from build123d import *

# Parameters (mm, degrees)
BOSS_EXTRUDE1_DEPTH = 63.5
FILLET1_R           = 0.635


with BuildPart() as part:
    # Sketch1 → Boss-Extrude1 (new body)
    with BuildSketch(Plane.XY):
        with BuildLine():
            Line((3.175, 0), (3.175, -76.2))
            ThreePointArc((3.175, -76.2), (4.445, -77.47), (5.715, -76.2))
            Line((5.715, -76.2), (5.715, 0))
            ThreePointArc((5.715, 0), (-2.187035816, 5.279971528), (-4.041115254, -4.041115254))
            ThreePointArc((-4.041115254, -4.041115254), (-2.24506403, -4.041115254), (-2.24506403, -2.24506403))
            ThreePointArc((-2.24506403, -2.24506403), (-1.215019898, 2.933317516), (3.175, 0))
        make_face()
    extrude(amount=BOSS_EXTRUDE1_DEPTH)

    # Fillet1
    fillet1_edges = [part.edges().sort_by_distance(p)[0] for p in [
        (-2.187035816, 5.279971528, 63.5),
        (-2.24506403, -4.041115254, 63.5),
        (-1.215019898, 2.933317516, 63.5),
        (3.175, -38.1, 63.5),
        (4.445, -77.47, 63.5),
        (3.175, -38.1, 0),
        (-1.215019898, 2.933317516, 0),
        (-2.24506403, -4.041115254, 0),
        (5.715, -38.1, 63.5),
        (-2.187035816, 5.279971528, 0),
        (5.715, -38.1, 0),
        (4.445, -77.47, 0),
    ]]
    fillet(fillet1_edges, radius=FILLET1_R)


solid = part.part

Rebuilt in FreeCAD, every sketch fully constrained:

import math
import FreeCAD as App
import Part
import Sketcher
from FreeCAD import Vector
Q = App.Units.Quantity


def edges_at(feature, points):
    """Names of the edges that pass closest to the given points."""
    edges = feature.Shape.Edges
    near = lambda p: min(range(len(edges)), key=lambda i: edges[i].distToShape(Part.Vertex(*p))[0])
    return sorted({f"Edge{near(p) + 1}" for p in points})

doc = App.newDocument("Part")
params = doc.addObject("Spreadsheet::Sheet", "Params")
for row, (alias, value) in enumerate([
    ("sketch1_height", "3 in"),
    ("sketch1_radius", "0.05 in"),
    ("sketch1_radius2", "0.225 in"),
    ("pad1_length", "2.5 in"),
    ("fillet_radius", "0.025 in"),
], start=1):
    params.set(f"A{row}", alias)
    params.set(f"B{row}", "=" + value)
    params.setAlias(f"B{row}", alias)

body = doc.addObject("PartDesign::Body", "Body")

sketch1 = doc.addObject("Sketcher::SketchObject", "Sketch")
body.addObject(sketch1)
sketch1.AttachmentSupport = (doc.XY_Plane, [""])
sketch1.MapMode = "FlatFace"
sketch1.addGeometry([
    Part.LineSegment(Vector(3.175, 0, 0), Vector(3.175, -76.2, 0)),
    Part.ArcOfCircle(Part.Circle(Vector(4.445, -76.2, 0), Vector(0, 0, 1), 1.27), math.radians(180), math.radians(360)),
    Part.LineSegment(Vector(5.715, -76.2, 0), Vector(5.715, 0, 0)),
    Part.ArcOfCircle(Part.Circle(Vector(0, 0, 0), Vector(0, 0, 1), 5.715), math.radians(0), math.radians(225)),
    Part.ArcOfCircle(Part.Circle(Vector(-3.14309, -3.14309, 0), Vector(0, 0, 1), 1.27), math.radians(-135), math.radians(45)),
    Part.ArcOfCircle(Part.Circle(Vector(0, 0, 0), Vector(0, 0, 1), 3.175), math.radians(0), math.radians(225)),
], False)
sketch1.addConstraint([
    Sketcher.Constraint("Tangent", 0, 2, 1, 1),
    Sketcher.Constraint("Tangent", 1, 2, 2, 1),
    Sketcher.Constraint("Tangent", 2, 2, 3, 1),
    Sketcher.Constraint("Tangent", 3, 2, 4, 1),
    Sketcher.Constraint("Tangent", 4, 2, 5, 2),
    Sketcher.Constraint("Tangent", 5, 1, 0, 1),
    Sketcher.Constraint("Vertical", 0),
    Sketcher.Constraint("Vertical", 2),
    Sketcher.Constraint("Coincident", 3, 3, -1, 1),
    Sketcher.Constraint("Coincident", 5, 3, -1, 1),
    Sketcher.Constraint("DistanceY", 0, 2, 0, 1, Q("3 in")),
    Sketcher.Constraint("Radius", 1, Q("0.05 in")),
    Sketcher.Constraint("Radius", 3, Q("0.225 in")),
    Sketcher.Constraint("DistanceX", 4, 3, -1, 1, 3.14309),
])
sketch1.setExpression("Constraints[10]", "Params.sketch1_height")
sketch1.setExpression("Constraints[11]", "Params.sketch1_radius")
sketch1.setExpression("Constraints[12]", "Params.sketch1_radius2")
pad1 = doc.addObject("PartDesign::Pad", "Pad")
body.addObject(pad1)
pad1.Profile = sketch1
pad1.setExpression("Length", "Params.pad1_length")
doc.recompute()

fillet = doc.addObject("PartDesign::Fillet", "Fillet")
body.addObject(fillet)
fillet.Base = (pad1, edges_at(pad1, [
    (-2.187, 5.28, 63.5),
    (-2.245, -4.041, 63.5),
    (-1.215, 2.933, 63.5),
    (3.175, -38.1, 63.5),
    (4.445, -77.47, 63.5),
    (3.175, -38.1, 0),
    (-1.215, 2.933, 0),
    (-2.245, -4.041, 0),
    (5.715, -38.1, 63.5),
    (-2.187, 5.28, 0),
    (5.715, -38.1, 0),
    (4.445, -77.47, 0),
]))
fillet.setExpression("Radius", "Params.fillet_radius")

doc.recompute()
